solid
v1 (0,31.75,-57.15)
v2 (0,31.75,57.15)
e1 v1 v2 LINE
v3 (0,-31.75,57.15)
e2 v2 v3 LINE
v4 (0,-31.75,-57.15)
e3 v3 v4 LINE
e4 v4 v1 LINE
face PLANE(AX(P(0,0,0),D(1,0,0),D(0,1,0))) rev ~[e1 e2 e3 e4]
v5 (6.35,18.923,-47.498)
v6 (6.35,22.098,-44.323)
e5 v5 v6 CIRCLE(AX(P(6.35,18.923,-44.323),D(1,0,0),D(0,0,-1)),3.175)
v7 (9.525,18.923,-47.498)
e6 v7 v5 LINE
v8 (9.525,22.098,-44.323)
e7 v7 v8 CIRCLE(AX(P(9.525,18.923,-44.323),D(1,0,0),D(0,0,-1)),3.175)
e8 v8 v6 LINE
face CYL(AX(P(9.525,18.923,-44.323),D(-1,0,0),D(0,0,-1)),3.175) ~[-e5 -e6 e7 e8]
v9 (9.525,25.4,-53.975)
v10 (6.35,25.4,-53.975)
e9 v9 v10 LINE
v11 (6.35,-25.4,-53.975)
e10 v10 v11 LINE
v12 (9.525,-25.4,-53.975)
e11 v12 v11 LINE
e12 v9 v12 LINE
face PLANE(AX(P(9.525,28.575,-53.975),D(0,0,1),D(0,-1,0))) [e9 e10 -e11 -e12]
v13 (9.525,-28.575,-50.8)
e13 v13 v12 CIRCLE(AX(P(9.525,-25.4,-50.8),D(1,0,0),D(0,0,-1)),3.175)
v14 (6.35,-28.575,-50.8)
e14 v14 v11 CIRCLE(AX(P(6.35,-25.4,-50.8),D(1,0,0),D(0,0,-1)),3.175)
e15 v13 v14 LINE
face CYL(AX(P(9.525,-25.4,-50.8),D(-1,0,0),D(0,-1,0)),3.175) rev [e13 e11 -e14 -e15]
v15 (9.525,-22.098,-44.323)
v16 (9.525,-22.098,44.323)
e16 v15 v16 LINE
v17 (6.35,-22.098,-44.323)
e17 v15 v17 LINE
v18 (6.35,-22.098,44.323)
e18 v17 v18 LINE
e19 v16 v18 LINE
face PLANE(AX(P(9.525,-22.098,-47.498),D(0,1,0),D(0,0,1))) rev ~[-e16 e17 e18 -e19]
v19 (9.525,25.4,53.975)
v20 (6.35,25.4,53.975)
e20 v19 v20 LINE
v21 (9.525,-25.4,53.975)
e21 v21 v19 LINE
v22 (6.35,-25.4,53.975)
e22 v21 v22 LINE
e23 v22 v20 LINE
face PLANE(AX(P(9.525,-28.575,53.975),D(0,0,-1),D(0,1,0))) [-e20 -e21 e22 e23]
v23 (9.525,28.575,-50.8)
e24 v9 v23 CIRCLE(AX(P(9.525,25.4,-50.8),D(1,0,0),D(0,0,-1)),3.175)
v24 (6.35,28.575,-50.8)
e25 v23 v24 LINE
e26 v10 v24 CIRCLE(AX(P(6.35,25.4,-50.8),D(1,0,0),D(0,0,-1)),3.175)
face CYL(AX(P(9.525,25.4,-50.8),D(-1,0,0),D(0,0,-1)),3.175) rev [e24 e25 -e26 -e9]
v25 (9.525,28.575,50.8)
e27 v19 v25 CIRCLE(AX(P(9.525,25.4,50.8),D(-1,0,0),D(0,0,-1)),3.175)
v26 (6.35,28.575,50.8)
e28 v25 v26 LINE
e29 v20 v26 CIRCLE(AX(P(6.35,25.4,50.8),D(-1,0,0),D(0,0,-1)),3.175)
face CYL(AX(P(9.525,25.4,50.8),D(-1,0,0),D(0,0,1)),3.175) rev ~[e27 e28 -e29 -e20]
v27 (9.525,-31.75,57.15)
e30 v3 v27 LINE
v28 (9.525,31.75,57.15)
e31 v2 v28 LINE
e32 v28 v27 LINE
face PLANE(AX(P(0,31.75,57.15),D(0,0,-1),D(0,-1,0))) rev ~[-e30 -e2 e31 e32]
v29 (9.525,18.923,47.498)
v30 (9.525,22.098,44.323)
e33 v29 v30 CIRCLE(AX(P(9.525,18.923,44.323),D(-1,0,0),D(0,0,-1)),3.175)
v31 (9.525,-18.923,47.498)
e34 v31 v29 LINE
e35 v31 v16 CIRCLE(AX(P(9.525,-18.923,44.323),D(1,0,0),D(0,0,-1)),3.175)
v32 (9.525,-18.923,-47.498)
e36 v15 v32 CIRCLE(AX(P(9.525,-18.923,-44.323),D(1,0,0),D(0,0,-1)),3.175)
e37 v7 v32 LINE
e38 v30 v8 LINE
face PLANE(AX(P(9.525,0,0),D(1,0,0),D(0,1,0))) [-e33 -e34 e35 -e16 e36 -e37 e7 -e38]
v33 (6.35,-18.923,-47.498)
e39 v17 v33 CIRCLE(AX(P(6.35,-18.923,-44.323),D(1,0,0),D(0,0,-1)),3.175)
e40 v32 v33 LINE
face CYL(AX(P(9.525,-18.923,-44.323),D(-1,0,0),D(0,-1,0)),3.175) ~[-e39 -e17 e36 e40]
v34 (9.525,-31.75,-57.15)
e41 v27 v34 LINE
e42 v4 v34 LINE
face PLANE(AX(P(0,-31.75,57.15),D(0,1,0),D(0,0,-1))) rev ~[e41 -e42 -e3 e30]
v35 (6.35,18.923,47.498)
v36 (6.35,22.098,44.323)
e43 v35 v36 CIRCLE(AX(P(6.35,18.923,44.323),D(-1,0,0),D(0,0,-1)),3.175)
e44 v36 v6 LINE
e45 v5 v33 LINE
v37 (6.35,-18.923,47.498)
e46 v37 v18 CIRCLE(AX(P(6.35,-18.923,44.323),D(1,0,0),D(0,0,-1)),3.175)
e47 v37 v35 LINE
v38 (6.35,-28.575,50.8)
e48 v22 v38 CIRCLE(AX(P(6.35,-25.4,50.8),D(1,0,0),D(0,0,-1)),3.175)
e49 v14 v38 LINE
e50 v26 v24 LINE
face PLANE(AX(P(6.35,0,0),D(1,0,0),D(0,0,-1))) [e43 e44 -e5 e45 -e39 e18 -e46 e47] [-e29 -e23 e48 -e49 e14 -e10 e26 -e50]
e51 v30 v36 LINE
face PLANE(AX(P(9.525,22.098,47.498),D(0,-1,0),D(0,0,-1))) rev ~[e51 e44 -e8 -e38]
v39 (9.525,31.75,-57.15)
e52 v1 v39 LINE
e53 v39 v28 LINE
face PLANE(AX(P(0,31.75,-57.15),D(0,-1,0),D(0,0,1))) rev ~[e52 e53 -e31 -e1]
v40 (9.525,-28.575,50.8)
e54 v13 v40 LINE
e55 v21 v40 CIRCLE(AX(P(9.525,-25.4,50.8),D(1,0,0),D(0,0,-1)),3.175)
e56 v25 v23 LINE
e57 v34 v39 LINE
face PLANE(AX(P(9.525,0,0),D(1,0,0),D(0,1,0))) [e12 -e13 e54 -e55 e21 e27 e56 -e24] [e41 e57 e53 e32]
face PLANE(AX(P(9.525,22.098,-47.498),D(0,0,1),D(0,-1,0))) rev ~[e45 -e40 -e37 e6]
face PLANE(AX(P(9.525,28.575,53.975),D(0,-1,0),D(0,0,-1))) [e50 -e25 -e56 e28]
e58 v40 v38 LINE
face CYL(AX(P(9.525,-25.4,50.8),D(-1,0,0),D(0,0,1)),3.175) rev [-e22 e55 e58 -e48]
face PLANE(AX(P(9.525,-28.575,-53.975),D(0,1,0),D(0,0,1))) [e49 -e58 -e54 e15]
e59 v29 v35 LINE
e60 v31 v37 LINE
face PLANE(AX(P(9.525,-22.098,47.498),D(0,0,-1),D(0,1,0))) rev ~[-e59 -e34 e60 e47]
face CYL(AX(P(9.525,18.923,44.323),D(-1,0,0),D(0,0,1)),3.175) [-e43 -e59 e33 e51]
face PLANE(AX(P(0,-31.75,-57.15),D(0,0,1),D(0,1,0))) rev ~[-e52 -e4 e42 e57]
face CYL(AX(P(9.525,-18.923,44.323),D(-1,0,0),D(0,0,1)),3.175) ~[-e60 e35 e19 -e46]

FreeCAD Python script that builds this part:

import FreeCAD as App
import Part
import Sketcher
from FreeCAD import Vector
Q = App.Units.Quantity


def edges_at(feature, points):
    """Names of the edges that pass closest to the given points."""
    edges = feature.Shape.Edges
    near = lambda p: min(range(len(edges)), key=lambda i: edges[i].distToShape(Part.Vertex(*p))[0])
    return sorted({f"Edge{near(p) + 1}" for p in points})


def add_polygon(sketch, points):
    """Adds a closed chain of lines whose ends are joined by coincident constraints."""
    first, n = sketch.GeometryCount, len(points)
    for a, b in zip(points, points[1:] + points[:1]):
        sketch.addGeometry(Part.LineSegment(App.Vector(*a, 0), App.Vector(*b, 0)), False)
    for i in range(n):
        sketch.addConstraint(Sketcher.Constraint("Coincident", first + i, 2, first + (i + 1) % n, 1))

doc = App.newDocument("Part")
body = doc.addObject("PartDesign::Body", "Body")

# Sketch on YZ plane
sketch1 = doc.addObject("Sketcher::SketchObject", "Sketch")
body.addObject(sketch1)
sketch1.AttachmentSupport = (doc.YZ_Plane, [""])
sketch1.MapMode = "FlatFace"
add_polygon(sketch1, [(32, -57), (32, 57), (-32, 57), (-32, -57)])  # lines 0-3
sketch1.addConstraint([
    Sketcher.Constraint("Vertical", 0),
    Sketcher.Constraint("Horizontal", 1),
    Sketcher.Constraint("Vertical", 2),
    Sketcher.Constraint("Horizontal", 3),
    Sketcher.Constraint("Symmetric", 0, 2, 2, 2, -1, 1),
    Sketcher.Constraint("DistanceX", 1, 2, 1, 1, Q("2.5 in")),
    Sketcher.Constraint("DistanceY", 0, 1, 0, 2, Q("4.5 in")),
])
pad1 = doc.addObject("PartDesign::Pad", "Pad")
body.addObject(pad1)
pad1.Profile = sketch1
pad1.Length = Q("0.375 in")

# Sketch on YZ plane
sketch2 = doc.addObject("Sketcher::SketchObject", "Sketch001")
body.addObject(sketch2)
sketch2.AttachmentSupport = (doc.YZ_Plane, [""])
sketch2.MapMode = "FlatFace"
sketch2.AttachmentOffset = App.Placement(Vector(0, 0, 0.375 * 25.4), App.Rotation())
add_polygon(sketch2, [(29, -54), (29, 54), (-29, 54), (-29, -54)])  # lines 0-3
add_polygon(sketch2, [(-22, 47), (22, 47), (22, -47), (-22, -47)])  # lines 4-7
sketch2.addConstraint([
    Sketcher.Constraint("Vertical", 0),
    Sketcher.Constraint("Horizontal", 1),
    Sketcher.Constraint("Vertical", 2),
    Sketcher.Constraint("Horizontal", 3),
    Sketcher.Constraint("Horizontal", 4),
    Sketcher.Constraint("Vertical", 5),
    Sketcher.Constraint("Horizontal", 6),
    Sketcher.Constraint("Vertical", 7),
    Sketcher.Constraint("Symmetric", 0, 2, 2, 2, -1, 1),
    Sketcher.Constraint("Symmetric", 4, 2, 6, 2, -1, 1),
    Sketcher.Constraint("DistanceX", 1, 2, 1, 1, Q("2.25 in")),
    Sketcher.Constraint("DistanceY", 0, 1, 0, 2, Q("4.25 in")),
    Sketcher.Constraint("DistanceX", 4, 2, 0, 2, Q("0.255 in")),
    Sketcher.Constraint("DistanceY", 4, 2, 0, 2, Q("0.255 in")),
])
pocket1 = doc.addObject("PartDesign::Pocket", "Pocket")
body.addObject(pocket1)
pocket1.Profile = sketch2
pocket1.Length = Q("0.125 in")
doc.recompute()

fillet = doc.addObject("PartDesign::Fillet", "Fillet")
body.addObject(fillet)
fillet.Base = (pocket1, edges_at(pocket1, [
    (7.938, 28.575, 53.975),
    (7.938, -28.575, 53.975),
    (7.938, -28.575, -53.975),
    (7.938, 28.575, -53.975),
    (7.938, -22.098, -47.498),
    (7.938, 22.098, -47.498),
    (7.938, 22.098, 47.498),
    (7.938, -22.098, 47.498),
]))
fillet.Radius = Q("0.125 in")

doc.recompute()
